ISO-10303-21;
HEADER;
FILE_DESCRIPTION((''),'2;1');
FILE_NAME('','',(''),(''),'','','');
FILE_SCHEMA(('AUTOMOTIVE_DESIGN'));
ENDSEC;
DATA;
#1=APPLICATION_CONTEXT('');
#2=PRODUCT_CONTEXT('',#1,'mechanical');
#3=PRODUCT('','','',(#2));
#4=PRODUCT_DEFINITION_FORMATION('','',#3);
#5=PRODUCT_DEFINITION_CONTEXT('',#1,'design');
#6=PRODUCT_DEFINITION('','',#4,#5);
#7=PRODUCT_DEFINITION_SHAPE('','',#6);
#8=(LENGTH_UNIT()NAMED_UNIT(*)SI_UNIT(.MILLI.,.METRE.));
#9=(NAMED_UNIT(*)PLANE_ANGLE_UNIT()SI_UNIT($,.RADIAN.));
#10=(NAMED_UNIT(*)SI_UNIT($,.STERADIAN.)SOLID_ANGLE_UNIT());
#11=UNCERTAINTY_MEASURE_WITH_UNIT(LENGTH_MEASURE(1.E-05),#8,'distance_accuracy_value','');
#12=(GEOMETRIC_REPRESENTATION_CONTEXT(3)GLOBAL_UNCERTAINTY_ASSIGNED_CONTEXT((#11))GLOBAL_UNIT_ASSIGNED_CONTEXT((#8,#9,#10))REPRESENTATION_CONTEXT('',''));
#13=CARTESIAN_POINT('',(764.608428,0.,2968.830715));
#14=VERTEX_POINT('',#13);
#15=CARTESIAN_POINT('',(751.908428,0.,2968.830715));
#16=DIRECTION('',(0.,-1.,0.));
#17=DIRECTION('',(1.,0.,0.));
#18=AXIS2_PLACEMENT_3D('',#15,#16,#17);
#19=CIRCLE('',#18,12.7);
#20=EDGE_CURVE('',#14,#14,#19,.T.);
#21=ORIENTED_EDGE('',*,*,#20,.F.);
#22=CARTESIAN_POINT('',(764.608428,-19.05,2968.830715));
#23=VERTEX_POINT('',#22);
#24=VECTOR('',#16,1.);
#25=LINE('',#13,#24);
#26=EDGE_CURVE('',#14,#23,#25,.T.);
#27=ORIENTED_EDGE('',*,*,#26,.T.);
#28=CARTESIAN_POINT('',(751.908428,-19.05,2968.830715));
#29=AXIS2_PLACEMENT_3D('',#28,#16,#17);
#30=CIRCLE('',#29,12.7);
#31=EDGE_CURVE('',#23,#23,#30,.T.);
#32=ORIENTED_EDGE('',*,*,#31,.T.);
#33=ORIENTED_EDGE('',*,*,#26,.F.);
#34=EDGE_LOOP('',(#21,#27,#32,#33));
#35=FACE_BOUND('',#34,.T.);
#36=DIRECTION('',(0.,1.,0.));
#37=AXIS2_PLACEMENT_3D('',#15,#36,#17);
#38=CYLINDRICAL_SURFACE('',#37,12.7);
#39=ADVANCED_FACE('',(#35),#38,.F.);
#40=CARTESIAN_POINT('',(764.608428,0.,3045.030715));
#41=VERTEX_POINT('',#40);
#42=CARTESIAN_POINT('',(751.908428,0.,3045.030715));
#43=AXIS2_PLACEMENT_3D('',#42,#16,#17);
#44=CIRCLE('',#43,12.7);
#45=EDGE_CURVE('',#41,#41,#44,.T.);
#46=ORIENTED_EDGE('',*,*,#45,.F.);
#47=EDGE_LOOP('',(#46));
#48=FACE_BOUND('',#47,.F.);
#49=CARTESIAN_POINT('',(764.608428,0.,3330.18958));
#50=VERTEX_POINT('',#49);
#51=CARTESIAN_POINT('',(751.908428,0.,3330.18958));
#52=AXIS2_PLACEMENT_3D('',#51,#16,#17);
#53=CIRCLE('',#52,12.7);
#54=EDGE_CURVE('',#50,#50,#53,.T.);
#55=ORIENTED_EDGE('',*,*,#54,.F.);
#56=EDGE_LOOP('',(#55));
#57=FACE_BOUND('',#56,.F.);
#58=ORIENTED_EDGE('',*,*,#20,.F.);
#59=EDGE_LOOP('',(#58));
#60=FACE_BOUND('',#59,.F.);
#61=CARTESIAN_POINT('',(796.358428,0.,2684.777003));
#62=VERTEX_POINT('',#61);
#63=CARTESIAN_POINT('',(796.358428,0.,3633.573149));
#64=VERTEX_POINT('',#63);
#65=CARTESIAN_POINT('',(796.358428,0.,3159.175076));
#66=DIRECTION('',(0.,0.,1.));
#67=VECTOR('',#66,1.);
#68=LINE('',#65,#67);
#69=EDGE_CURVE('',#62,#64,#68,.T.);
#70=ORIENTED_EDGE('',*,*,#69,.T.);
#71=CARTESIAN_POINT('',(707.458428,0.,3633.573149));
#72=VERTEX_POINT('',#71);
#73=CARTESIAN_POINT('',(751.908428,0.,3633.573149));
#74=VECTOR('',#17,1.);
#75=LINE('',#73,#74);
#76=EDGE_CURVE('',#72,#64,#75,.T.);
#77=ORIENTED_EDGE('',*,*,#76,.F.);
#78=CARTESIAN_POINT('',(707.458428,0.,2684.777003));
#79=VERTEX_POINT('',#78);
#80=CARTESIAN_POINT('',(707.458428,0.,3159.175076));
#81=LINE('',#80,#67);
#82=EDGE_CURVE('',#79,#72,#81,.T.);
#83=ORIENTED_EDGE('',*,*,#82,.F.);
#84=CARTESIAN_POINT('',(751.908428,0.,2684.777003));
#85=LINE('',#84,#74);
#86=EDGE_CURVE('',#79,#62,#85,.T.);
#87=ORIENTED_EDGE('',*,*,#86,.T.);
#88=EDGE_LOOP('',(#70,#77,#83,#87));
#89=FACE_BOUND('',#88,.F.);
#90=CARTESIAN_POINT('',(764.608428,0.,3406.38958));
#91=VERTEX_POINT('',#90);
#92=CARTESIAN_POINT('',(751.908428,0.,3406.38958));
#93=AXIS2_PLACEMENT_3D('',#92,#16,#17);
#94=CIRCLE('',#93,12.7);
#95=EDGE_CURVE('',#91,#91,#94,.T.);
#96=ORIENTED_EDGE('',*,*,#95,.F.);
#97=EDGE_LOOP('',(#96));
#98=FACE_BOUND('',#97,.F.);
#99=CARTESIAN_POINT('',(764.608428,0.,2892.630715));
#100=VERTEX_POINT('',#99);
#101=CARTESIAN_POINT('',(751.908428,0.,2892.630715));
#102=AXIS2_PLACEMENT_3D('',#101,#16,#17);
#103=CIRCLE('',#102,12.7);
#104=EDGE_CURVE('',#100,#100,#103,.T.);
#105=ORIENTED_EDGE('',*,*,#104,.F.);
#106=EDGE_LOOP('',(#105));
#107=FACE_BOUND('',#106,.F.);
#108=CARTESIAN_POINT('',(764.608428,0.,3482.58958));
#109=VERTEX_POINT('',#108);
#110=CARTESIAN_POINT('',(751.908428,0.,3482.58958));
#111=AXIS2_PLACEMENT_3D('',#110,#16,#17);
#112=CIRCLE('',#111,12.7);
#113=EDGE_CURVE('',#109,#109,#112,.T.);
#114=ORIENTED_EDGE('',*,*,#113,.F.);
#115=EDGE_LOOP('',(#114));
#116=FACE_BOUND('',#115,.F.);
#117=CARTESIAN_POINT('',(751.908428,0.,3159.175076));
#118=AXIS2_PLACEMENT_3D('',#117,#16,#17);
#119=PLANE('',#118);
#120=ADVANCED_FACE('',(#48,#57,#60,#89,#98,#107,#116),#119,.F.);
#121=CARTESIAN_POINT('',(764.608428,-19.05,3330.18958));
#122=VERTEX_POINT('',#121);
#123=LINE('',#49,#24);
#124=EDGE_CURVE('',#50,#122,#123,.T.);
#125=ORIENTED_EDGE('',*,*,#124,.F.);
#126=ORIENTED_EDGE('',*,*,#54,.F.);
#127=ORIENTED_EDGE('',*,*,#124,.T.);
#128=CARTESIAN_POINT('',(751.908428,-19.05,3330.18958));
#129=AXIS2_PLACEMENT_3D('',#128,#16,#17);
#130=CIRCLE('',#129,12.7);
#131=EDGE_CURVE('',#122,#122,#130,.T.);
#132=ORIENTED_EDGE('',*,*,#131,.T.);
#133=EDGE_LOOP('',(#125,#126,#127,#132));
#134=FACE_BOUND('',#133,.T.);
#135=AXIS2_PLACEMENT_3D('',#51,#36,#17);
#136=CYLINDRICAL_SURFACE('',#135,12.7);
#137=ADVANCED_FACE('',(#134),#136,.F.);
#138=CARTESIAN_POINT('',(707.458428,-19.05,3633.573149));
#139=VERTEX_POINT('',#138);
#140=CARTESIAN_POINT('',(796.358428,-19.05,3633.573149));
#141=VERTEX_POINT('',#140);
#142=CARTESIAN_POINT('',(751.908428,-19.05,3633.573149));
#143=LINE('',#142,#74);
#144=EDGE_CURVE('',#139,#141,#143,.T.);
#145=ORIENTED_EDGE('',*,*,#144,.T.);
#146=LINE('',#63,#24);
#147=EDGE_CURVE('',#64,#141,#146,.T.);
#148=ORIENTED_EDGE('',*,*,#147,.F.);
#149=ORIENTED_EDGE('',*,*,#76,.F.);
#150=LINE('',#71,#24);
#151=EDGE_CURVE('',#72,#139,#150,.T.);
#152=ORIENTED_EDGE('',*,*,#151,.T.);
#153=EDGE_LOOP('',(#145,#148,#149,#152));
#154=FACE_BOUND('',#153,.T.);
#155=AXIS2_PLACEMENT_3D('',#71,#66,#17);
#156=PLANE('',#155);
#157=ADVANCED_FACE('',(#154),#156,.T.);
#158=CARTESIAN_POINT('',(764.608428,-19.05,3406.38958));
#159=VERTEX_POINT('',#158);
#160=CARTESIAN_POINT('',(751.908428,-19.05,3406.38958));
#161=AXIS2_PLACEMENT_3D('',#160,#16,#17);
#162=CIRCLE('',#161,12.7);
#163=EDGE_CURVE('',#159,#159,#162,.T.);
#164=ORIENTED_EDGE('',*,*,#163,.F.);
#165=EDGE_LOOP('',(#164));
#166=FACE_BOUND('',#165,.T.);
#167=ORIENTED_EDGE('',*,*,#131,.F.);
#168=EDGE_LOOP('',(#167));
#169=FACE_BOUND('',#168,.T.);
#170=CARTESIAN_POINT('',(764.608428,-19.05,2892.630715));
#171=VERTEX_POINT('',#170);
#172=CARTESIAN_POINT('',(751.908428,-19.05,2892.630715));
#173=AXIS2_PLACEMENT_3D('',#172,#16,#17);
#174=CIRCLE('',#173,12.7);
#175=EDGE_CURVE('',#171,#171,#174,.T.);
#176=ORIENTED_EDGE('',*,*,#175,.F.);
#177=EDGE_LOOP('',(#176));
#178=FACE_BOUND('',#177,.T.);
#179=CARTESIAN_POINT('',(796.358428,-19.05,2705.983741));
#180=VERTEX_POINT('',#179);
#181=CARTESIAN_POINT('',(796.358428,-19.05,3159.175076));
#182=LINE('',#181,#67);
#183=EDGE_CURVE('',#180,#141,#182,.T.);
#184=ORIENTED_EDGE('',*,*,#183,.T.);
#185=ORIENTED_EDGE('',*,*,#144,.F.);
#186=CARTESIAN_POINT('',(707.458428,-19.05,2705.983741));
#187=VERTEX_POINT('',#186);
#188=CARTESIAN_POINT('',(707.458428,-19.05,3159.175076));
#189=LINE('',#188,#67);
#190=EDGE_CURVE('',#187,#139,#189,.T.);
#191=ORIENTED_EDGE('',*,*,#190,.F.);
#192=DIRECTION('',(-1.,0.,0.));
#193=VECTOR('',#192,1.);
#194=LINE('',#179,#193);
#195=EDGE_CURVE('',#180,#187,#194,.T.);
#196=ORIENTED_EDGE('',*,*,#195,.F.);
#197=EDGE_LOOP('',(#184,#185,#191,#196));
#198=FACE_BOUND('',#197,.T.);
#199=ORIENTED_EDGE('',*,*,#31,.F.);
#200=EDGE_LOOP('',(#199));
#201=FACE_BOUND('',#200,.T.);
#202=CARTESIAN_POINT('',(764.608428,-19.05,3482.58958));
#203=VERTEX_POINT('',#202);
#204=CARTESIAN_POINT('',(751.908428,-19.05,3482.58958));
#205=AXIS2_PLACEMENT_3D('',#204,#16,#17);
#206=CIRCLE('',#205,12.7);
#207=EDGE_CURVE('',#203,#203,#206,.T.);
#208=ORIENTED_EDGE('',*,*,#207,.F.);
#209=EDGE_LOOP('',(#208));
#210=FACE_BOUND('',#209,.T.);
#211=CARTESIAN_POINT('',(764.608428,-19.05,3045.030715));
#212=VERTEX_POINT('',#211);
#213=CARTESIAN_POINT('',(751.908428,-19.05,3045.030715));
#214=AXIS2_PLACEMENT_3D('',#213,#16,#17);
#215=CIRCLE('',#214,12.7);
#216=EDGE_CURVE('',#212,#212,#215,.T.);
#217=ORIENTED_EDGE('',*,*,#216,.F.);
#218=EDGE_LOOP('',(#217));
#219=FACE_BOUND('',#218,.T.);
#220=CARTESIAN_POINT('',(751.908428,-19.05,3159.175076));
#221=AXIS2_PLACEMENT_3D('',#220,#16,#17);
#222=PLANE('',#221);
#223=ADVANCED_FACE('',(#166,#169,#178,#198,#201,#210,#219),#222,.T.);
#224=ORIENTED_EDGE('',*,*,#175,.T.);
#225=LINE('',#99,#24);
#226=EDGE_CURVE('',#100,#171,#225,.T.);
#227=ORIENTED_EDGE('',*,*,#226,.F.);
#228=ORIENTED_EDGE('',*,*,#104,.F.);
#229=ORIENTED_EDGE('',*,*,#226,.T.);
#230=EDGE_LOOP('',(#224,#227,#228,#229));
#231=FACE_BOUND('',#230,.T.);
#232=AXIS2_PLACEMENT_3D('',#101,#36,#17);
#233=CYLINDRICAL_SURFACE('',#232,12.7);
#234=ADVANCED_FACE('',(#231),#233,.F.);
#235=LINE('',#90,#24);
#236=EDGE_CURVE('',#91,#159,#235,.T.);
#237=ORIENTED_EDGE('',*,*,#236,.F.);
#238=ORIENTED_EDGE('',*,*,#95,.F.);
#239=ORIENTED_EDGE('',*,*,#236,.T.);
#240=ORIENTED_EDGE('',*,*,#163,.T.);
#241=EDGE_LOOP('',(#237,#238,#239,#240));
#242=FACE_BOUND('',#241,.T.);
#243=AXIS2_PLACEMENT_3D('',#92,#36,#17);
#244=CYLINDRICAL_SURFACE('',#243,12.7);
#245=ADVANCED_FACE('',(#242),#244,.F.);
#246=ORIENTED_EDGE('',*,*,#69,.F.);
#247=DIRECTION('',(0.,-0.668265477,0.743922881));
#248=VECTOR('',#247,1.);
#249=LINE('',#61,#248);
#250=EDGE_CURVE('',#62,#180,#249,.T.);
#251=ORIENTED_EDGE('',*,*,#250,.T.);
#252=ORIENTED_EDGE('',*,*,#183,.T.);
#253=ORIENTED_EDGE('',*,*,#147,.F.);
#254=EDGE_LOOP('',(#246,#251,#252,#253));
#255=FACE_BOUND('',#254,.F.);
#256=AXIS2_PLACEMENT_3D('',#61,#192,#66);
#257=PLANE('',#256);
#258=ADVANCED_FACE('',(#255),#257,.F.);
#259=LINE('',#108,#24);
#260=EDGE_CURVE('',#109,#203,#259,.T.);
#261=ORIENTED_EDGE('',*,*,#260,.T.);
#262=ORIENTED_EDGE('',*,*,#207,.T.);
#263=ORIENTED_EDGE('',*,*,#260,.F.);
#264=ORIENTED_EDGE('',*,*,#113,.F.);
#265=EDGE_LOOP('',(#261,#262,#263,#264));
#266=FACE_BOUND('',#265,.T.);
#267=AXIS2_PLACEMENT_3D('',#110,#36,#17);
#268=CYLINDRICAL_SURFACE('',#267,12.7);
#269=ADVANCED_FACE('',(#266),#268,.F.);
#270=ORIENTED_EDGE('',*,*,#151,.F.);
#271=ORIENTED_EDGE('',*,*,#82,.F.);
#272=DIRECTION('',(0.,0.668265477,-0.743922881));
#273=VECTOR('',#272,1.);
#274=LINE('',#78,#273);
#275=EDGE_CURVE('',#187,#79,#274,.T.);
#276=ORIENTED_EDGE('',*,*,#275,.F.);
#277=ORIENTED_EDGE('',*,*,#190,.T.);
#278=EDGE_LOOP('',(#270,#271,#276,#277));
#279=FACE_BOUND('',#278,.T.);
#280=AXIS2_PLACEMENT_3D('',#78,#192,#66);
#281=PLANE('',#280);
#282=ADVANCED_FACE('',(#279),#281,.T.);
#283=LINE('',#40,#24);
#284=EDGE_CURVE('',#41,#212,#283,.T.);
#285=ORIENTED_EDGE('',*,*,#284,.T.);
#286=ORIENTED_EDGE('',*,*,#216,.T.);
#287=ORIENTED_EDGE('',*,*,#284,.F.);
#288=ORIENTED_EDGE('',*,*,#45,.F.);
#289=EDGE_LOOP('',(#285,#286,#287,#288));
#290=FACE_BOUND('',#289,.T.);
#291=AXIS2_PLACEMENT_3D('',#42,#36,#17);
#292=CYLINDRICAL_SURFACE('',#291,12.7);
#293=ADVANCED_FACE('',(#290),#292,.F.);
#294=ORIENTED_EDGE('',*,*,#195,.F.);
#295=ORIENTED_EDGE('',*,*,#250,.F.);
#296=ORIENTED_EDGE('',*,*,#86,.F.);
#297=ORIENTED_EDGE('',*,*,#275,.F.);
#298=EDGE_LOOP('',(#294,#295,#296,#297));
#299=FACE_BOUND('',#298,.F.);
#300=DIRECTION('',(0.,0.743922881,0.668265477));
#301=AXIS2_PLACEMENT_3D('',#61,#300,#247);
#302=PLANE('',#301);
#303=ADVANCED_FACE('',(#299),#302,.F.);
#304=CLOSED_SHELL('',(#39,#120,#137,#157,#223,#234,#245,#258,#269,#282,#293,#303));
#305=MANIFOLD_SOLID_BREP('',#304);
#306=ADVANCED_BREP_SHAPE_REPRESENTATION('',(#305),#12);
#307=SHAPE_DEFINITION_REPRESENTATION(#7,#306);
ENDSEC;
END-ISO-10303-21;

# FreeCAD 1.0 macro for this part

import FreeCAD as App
import Part
import Sketcher
from FreeCAD import Vector
Q = App.Units.Quantity

doc = App.newDocument("Part")
body = doc.addObject("PartDesign::Body", "Body")

# Sketch on XZ plane
sketch1 = body.newObject("Sketcher::SketchObject", "Sketch")
sketch1.AttachmentSupport = (doc.getObject("XZ_Plane"), [""])
sketch1.MapMode = "FlatFace"
sketch1.addGeometry([
    Part.LineSegment(Vector(707, 3634, 0), Vector(707, 2685, 0)),  # 0
    Part.LineSegment(Vector(707, 2685, 0), Vector(796, 2685, 0)),  # 1
    Part.LineSegment(Vector(796, 2685, 0), Vector(796, 3634, 0)),  # 2
    Part.LineSegment(Vector(796, 3634, 0), Vector(707, 3634, 0)),  # 3
    Part.Circle(Vector(752, 2893, 0), Vector(0, 0, 1), 13),  # 4
    Part.Circle(Vector(752, 2969, 0), Vector(0, 0, 1), 13),  # 5
    Part.Circle(Vector(752, 3045, 0), Vector(0, 0, 1), 13),  # 6
    Part.Circle(Vector(752, 3330, 0), Vector(0, 0, 1), 13),  # 7
    Part.Circle(Vector(752, 3406, 0), Vector(0, 0, 1), 13),  # 8
    Part.Circle(Vector(752, 3483, 0), Vector(0, 0, 1), 13),  # 9
], False)
sketch1.addConstraint([
    Sketcher.Constraint("Coincident", 0, 2, 1, 1),
    Sketcher.Constraint("Coincident", 1, 2, 2, 1),
    Sketcher.Constraint("Coincident", 2, 2, 3, 1),
    Sketcher.Constraint("Coincident", 3, 2, 0, 1),
    Sketcher.Constraint("Vertical", 0),
    Sketcher.Constraint("Horizontal", 1),
    Sketcher.Constraint("Vertical", 2),
    Sketcher.Constraint("Horizontal", 3),
    Sketcher.Constraint("Equal", 4, 5),
    Sketcher.Constraint("Equal", 5, 6),
    Sketcher.Constraint("Equal", 6, 7),
    Sketcher.Constraint("Equal", 7, 8),
    Sketcher.Constraint("Equal", 8, 9),
    Sketcher.Constraint("Vertical", 4, 3, 5, 3),
    Sketcher.Constraint("Vertical", 5, 3, 6, 3),
    Sketcher.Constraint("Vertical", 6, 3, 7, 3),
    Sketcher.Constraint("Vertical", 7, 3, 8, 3),
    Sketcher.Constraint("Vertical", 8, 3, 9, 3),
    Sketcher.Constraint("Diameter", 4, Q("1 in")),
    Sketcher.Constraint("DistanceX", 1, 1, 1, 2, Q("3.5 in")),
    Sketcher.Constraint("DistanceY", 4, 3, 5, 3, Q("3 in")),
    Sketcher.Constraint("DistanceY", 5, 3, 6, 3, Q("3 in")),
    Sketcher.Constraint("DistanceY", 7, 3, 8, 3, Q("3 in")),
    Sketcher.Constraint("DistanceY", 8, 3, 9, 3, Q("3 in")),
    Sketcher.Constraint("DistanceX", 0, 2, 4, 3, Q("1.75 in")),
    Sketcher.Constraint("DistanceY", 0, 2, 0, 1, Q("948.796146 mm")),
    Sketcher.Constraint("DistanceX", -1, 1, 4, 3, Q("751.908428 mm")),
    Sketcher.Constraint("DistanceY", -1, 1, 7, 3, Q("3330.18958 mm")),
    Sketcher.Constraint("DistanceY", -1, 1, 2, 2, Q("3633.573149 mm")),
    Sketcher.Constraint("DistanceY", 0, 2, 4, 3, Q("207.853712 mm")),
])
pad1 = body.newObject("PartDesign::Pad", "Pad")
pad1.Profile = sketch1
pad1.Length = Q("0.75 in")

# Sketch on YZ plane
sketch2 = body.newObject("Sketcher::SketchObject", "Sketch001")
sketch2.AttachmentSupport = (doc.getObject("YZ_Plane"), [""])
sketch2.MapMode = "FlatFace"
sketch2.AttachmentOffset = App.Placement(Vector(0, 0, 796.358428), App.Rotation())
sketch2.addGeometry([
    Part.LineSegment(Vector(-19, 2685, 0), Vector(0, 2685, 0)),
    Part.LineSegment(Vector(0, 2685, 0), Vector(-19, 2706, 0)),
    Part.LineSegment(Vector(-19, 2706, 0), Vector(-19, 2685, 0)),
], False)
sketch2.addConstraint([
    Sketcher.Constraint("Coincident", 0, 2, 1, 1),
    Sketcher.Constraint("Coincident", 1, 2, 2, 1),
    Sketcher.Constraint("Coincident", 2, 2, 0, 1),
    Sketcher.Constraint("Horizontal", 0),
    Sketcher.Constraint("Vertical", 2),
    Sketcher.Constraint("PointOnObject", 0, 2, -2),
    Sketcher.Constraint("DistanceX", 0, 1, 0, 2, Q("0.75 in")),
    Sketcher.Constraint("DistanceY", 2, 2, 2, 1, Q("21.206738 mm")),
    Sketcher.Constraint("DistanceY", -1, 1, 1, 2, Q("2705.983741 mm")),
])
pocket1 = body.newObject("PartDesign::Pocket", "Pocket")
pocket1.Profile = sketch2
pocket1.Type = "ThroughAll"

doc.recompute()
